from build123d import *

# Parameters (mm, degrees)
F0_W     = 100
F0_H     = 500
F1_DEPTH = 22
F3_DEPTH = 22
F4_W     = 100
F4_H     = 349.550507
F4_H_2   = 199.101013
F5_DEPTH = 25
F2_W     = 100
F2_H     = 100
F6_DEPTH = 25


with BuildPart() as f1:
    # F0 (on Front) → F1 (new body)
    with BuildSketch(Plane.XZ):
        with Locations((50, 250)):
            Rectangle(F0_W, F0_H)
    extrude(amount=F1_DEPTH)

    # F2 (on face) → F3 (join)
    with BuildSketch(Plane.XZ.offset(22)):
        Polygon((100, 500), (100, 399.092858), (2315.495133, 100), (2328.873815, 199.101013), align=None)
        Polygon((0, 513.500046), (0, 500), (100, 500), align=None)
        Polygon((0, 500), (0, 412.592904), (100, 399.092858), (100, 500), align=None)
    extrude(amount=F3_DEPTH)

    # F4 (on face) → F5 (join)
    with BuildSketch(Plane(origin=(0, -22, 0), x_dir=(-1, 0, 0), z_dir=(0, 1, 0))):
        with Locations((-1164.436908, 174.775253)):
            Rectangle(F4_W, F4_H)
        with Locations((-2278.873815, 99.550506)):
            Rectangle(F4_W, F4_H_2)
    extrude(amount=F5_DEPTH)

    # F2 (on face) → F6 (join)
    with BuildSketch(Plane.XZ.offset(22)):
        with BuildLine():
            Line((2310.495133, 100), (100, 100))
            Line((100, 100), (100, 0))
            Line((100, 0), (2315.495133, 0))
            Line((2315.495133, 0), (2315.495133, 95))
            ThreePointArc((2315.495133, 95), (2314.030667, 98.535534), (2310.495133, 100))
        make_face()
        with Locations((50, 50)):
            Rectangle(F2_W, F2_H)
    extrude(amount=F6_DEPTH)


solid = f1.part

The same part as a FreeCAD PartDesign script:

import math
import FreeCAD as App
import Part
import Sketcher

V = App.Vector
Q = App.Units.Quantity


def add_polygon(sketch, points):
    """Adds a closed chain of lines whose ends are joined by coincident constraints."""
    first, n = sketch.GeometryCount, len(points)
    for a, b in zip(points, points[1:] + points[:1]):
        sketch.addGeometry(Part.LineSegment(App.Vector(*a, 0), App.Vector(*b, 0)), False)
    for i in range(n):
        sketch.addConstraint(Sketcher.Constraint("Coincident", first + i, 2, first + (i + 1) % n, 1))

doc = App.newDocument("Part")
params = doc.addObject("Spreadsheet::Sheet", "Params")
for row, (alias, value) in enumerate([
    ("sketch1_width", "100 mm"),
    ("sketch1_height", "500 mm"),
    ("pad1_length", "22 mm"),
    ("sketch2_length", "100 mm"),
    ("pad2_length", "22 mm"),
    ("sketch3_width", "100 mm"),
    ("pad3_length", "25 mm"),
    ("sketch4_radius", "5 mm"),
    ("sketch4_height", "100 mm"),
    ("pad4_length", "25 mm"),
], start=1):
    params.set(f"A{row}", alias)
    params.set(f"B{row}", "=" + value)
    params.setAlias(f"B{row}", alias)

body = doc.addObject("PartDesign::Body", "Body")

sketch1 = doc.addObject("Sketcher::SketchObject", "Sketch")
body.addObject(sketch1)
sketch1.AttachmentSupport = (doc.XZ_Plane, [""])
sketch1.MapMode = "FlatFace"
add_polygon(sketch1, [(0, 500), (0, 0), (100, 0), (100, 500)])
sketch1.addConstraint(Sketcher.Constraint("Vertical", 0))
sketch1.addConstraint(Sketcher.Constraint("Horizontal", 1))
sketch1.addConstraint(Sketcher.Constraint("Vertical", 2))
sketch1.addConstraint(Sketcher.Constraint("Horizontal", 3))
sketch1.addConstraint(Sketcher.Constraint("Coincident", 0, 2, -1, 1))
sketch1.addConstraint(Sketcher.Constraint("DistanceX", 1, 1, 1, 2, Q("100 mm")))
sketch1.addConstraint(Sketcher.Constraint("DistanceY", 0, 2, 0, 1, Q("500 mm")))
sketch1.setExpression("Constraints[9]", "Params.sketch1_width")
sketch1.setExpression("Constraints[10]", "Params.sketch1_height")
pad1 = doc.addObject("PartDesign::Pad", "Pad")
body.addObject(pad1)
pad1.Profile = sketch1
pad1.setExpression("Length", "Params.pad1_length")

sketch2 = doc.addObject("Sketcher::SketchObject", "Sketch001")
body.addObject(sketch2)
sketch2.AttachmentSupport = (doc.XZ_Plane, [""])
sketch2.MapMode = "FlatFace"
sketch2.AttachmentOffset = App.Placement(V(0, 0, 22), App.Rotation())
add_polygon(sketch2, [(100, 399.092858), (2315.495133, 100), (2328.873815, 199.101013), (100, 500), (0, 513.500046), (0, 412.592904)])
sketch2.addConstraint(Sketcher.Constraint("Vertical", 4))
sketch2.addConstraint(Sketcher.Constraint("PointOnObject", 3, 2, -2))
sketch2.addConstraint(Sketcher.Constraint("Perpendicular", 0, 1))
sketch2.addConstraint(Sketcher.Constraint("Perpendicular", 1, 2))
sketch2.addConstraint(Sketcher.Constraint("Parallel", 2, 3))
sketch2.addConstraint(Sketcher.Constraint("Parallel", 3, 5))
sketch2.addConstraint(Sketcher.Constraint("Vertical", 2, 2, 5, 2))
sketch2.addConstraint(Sketcher.Constraint("Distance", 1, Q("100 mm")))
sketch2.addConstraint(Sketcher.Constraint("DistanceY", -1, 1, 0, 2, Q("100 mm")))
sketch2.addConstraint(Sketcher.Constraint("DistanceX", -1, 1, 2, 2, Q("100 mm")))
sketch2.addConstraint(Sketcher.Constraint("DistanceY", -1, 1, 2, 2, Q("500 mm")))
sketch2.addConstraint(Sketcher.Constraint("DistanceY", 1, 2, 4, 2, Q("213.491891 mm")))
sketch2.setExpression("Constraints[13]", "Params.sketch2_length")
pad2 = doc.addObject("PartDesign::Pad", "Pad001")
body.addObject(pad2)
pad2.Profile = sketch2
pad2.setExpression("Length", "Params.pad2_length")

sketch3 = doc.addObject("Sketcher::SketchObject", "Sketch002")
body.addObject(sketch3)
sketch3.AttachmentSupport = (doc.XZ_Plane, [""])
sketch3.MapMode = "FlatFace"
sketch3.AttachmentOffset = App.Placement(V(0, 0, 22), App.Rotation())
add_polygon(sketch3, [(1214, 350), (1214, 0), (1114, 0), (1114, 350)])
add_polygon(sketch3, [(2329, 199), (2329, 0), (2229, 0), (2229, 199)])
sketch3.addConstraint(Sketcher.Constraint("Vertical", 0))
sketch3.addConstraint(Sketcher.Constraint("Horizontal", 1))
sketch3.addConstraint(Sketcher.Constraint("Vertical", 2))
sketch3.addConstraint(Sketcher.Constraint("Horizontal", 3))
sketch3.addConstraint(Sketcher.Constraint("Vertical", 4))
sketch3.addConstraint(Sketcher.Constraint("Horizontal", 5))
sketch3.addConstraint(Sketcher.Constraint("Vertical", 6))
sketch3.addConstraint(Sketcher.Constraint("Horizontal", 7))
sketch3.addConstraint(Sketcher.Constraint("PointOnObject", 0, 2, -1))
sketch3.addConstraint(Sketcher.Constraint("PointOnObject", 4, 2, -1))
sketch3.addConstraint(Sketcher.Constraint("Equal", 3, 5))
sketch3.addConstraint(Sketcher.Constraint("DistanceX", 1, 2, 1, 1, Q("100 mm")))
sketch3.addConstraint(Sketcher.Constraint("DistanceY", 0, 2, 0, 1, Q("349.550507 mm")))
sketch3.addConstraint(Sketcher.Constraint("DistanceY", 4, 2, 4, 1, Q("199.101013 mm")))
sketch3.addConstraint(Sketcher.Constraint("DistanceX", -1, 1, 0, 2, Q("1214.436908 mm")))
sketch3.addConstraint(Sketcher.Constraint("DistanceX", -1, 1, 4, 2, Q("2328.873815 mm")))
sketch3.setExpression("Constraints[19]", "Params.sketch3_width")
pad3 = doc.addObject("PartDesign::Pad", "Pad002")
body.addObject(pad3)
pad3.Profile = sketch3
pad3.setExpression("Length", "Params.pad3_length")
pad3.Reversed = True

sketch4 = doc.addObject("Sketcher::SketchObject", "Sketch003")
body.addObject(sketch4)
sketch4.AttachmentSupport = (doc.XZ_Plane, [""])
sketch4.MapMode = "FlatFace"
sketch4.AttachmentOffset = App.Placement(V(0, 0, 22), App.Rotation())
sketch4.addGeometry(Part.LineSegment(V(2310.495133, 100, 0), V(0, 100, 0)), False)
sketch4.addGeometry(Part.LineSegment(V(0, 100, 0), V(0, 0, 0)), False)
sketch4.addGeometry(Part.LineSegment(V(0, 0, 0), V(2315.495133, 0, 0)), False)
sketch4.addGeometry(Part.LineSegment(V(2315.495133, 0, 0), V(2315.495133, 95, 0)), False)
sketch4.addGeometry(Part.ArcOfCircle(Part.Circle(V(2310.495133, 95, 0), V(0, 0, 1), 5), math.radians(-0.000004), math.radians(90.000004)), False)
sketch4.addConstraint(Sketcher.Constraint("Coincident", 0, 2, 1, 1))
sketch4.addConstraint(Sketcher.Constraint("Coincident", 1, 2, 2, 1))
sketch4.addConstraint(Sketcher.Constraint("Coincident", 2, 2, 3, 1))
sketch4.addConstraint(Sketcher.Constraint("Tangent", 3, 2, 4, 1))
sketch4.addConstraint(Sketcher.Constraint("Tangent", 4, 2, 0, 1))
sketch4.addConstraint(Sketcher.Constraint("Horizontal", 0))
sketch4.addConstraint(Sketcher.Constraint("Vertical", 1))
sketch4.addConstraint(Sketcher.Constraint("Horizontal", 2))
sketch4.addConstraint(Sketcher.Constraint("Vertical", 3))
sketch4.addConstraint(Sketcher.Constraint("Coincident", 1, 2, -1, 1))
sketch4.addConstraint(Sketcher.Constraint("Radius", 4, Q("5 mm")))
sketch4.addConstraint(Sketcher.Constraint("DistanceY", 1, 2, 1, 1, Q("100 mm")))
sketch4.addConstraint(Sketcher.Constraint("DistanceX", 0, 2, 0, 1, Q("2310.495133 mm")))
sketch4.setExpression("Constraints[10]", "Params.sketch4_radius")
sketch4.setExpression("Constraints[11]", "Params.sketch4_height")
pad4 = doc.addObject("PartDesign::Pad", "Pad003")
body.addObject(pad4)
pad4.Profile = sketch4
pad4.setExpression("Length", "Params.pad4_length")

doc.recompute()
